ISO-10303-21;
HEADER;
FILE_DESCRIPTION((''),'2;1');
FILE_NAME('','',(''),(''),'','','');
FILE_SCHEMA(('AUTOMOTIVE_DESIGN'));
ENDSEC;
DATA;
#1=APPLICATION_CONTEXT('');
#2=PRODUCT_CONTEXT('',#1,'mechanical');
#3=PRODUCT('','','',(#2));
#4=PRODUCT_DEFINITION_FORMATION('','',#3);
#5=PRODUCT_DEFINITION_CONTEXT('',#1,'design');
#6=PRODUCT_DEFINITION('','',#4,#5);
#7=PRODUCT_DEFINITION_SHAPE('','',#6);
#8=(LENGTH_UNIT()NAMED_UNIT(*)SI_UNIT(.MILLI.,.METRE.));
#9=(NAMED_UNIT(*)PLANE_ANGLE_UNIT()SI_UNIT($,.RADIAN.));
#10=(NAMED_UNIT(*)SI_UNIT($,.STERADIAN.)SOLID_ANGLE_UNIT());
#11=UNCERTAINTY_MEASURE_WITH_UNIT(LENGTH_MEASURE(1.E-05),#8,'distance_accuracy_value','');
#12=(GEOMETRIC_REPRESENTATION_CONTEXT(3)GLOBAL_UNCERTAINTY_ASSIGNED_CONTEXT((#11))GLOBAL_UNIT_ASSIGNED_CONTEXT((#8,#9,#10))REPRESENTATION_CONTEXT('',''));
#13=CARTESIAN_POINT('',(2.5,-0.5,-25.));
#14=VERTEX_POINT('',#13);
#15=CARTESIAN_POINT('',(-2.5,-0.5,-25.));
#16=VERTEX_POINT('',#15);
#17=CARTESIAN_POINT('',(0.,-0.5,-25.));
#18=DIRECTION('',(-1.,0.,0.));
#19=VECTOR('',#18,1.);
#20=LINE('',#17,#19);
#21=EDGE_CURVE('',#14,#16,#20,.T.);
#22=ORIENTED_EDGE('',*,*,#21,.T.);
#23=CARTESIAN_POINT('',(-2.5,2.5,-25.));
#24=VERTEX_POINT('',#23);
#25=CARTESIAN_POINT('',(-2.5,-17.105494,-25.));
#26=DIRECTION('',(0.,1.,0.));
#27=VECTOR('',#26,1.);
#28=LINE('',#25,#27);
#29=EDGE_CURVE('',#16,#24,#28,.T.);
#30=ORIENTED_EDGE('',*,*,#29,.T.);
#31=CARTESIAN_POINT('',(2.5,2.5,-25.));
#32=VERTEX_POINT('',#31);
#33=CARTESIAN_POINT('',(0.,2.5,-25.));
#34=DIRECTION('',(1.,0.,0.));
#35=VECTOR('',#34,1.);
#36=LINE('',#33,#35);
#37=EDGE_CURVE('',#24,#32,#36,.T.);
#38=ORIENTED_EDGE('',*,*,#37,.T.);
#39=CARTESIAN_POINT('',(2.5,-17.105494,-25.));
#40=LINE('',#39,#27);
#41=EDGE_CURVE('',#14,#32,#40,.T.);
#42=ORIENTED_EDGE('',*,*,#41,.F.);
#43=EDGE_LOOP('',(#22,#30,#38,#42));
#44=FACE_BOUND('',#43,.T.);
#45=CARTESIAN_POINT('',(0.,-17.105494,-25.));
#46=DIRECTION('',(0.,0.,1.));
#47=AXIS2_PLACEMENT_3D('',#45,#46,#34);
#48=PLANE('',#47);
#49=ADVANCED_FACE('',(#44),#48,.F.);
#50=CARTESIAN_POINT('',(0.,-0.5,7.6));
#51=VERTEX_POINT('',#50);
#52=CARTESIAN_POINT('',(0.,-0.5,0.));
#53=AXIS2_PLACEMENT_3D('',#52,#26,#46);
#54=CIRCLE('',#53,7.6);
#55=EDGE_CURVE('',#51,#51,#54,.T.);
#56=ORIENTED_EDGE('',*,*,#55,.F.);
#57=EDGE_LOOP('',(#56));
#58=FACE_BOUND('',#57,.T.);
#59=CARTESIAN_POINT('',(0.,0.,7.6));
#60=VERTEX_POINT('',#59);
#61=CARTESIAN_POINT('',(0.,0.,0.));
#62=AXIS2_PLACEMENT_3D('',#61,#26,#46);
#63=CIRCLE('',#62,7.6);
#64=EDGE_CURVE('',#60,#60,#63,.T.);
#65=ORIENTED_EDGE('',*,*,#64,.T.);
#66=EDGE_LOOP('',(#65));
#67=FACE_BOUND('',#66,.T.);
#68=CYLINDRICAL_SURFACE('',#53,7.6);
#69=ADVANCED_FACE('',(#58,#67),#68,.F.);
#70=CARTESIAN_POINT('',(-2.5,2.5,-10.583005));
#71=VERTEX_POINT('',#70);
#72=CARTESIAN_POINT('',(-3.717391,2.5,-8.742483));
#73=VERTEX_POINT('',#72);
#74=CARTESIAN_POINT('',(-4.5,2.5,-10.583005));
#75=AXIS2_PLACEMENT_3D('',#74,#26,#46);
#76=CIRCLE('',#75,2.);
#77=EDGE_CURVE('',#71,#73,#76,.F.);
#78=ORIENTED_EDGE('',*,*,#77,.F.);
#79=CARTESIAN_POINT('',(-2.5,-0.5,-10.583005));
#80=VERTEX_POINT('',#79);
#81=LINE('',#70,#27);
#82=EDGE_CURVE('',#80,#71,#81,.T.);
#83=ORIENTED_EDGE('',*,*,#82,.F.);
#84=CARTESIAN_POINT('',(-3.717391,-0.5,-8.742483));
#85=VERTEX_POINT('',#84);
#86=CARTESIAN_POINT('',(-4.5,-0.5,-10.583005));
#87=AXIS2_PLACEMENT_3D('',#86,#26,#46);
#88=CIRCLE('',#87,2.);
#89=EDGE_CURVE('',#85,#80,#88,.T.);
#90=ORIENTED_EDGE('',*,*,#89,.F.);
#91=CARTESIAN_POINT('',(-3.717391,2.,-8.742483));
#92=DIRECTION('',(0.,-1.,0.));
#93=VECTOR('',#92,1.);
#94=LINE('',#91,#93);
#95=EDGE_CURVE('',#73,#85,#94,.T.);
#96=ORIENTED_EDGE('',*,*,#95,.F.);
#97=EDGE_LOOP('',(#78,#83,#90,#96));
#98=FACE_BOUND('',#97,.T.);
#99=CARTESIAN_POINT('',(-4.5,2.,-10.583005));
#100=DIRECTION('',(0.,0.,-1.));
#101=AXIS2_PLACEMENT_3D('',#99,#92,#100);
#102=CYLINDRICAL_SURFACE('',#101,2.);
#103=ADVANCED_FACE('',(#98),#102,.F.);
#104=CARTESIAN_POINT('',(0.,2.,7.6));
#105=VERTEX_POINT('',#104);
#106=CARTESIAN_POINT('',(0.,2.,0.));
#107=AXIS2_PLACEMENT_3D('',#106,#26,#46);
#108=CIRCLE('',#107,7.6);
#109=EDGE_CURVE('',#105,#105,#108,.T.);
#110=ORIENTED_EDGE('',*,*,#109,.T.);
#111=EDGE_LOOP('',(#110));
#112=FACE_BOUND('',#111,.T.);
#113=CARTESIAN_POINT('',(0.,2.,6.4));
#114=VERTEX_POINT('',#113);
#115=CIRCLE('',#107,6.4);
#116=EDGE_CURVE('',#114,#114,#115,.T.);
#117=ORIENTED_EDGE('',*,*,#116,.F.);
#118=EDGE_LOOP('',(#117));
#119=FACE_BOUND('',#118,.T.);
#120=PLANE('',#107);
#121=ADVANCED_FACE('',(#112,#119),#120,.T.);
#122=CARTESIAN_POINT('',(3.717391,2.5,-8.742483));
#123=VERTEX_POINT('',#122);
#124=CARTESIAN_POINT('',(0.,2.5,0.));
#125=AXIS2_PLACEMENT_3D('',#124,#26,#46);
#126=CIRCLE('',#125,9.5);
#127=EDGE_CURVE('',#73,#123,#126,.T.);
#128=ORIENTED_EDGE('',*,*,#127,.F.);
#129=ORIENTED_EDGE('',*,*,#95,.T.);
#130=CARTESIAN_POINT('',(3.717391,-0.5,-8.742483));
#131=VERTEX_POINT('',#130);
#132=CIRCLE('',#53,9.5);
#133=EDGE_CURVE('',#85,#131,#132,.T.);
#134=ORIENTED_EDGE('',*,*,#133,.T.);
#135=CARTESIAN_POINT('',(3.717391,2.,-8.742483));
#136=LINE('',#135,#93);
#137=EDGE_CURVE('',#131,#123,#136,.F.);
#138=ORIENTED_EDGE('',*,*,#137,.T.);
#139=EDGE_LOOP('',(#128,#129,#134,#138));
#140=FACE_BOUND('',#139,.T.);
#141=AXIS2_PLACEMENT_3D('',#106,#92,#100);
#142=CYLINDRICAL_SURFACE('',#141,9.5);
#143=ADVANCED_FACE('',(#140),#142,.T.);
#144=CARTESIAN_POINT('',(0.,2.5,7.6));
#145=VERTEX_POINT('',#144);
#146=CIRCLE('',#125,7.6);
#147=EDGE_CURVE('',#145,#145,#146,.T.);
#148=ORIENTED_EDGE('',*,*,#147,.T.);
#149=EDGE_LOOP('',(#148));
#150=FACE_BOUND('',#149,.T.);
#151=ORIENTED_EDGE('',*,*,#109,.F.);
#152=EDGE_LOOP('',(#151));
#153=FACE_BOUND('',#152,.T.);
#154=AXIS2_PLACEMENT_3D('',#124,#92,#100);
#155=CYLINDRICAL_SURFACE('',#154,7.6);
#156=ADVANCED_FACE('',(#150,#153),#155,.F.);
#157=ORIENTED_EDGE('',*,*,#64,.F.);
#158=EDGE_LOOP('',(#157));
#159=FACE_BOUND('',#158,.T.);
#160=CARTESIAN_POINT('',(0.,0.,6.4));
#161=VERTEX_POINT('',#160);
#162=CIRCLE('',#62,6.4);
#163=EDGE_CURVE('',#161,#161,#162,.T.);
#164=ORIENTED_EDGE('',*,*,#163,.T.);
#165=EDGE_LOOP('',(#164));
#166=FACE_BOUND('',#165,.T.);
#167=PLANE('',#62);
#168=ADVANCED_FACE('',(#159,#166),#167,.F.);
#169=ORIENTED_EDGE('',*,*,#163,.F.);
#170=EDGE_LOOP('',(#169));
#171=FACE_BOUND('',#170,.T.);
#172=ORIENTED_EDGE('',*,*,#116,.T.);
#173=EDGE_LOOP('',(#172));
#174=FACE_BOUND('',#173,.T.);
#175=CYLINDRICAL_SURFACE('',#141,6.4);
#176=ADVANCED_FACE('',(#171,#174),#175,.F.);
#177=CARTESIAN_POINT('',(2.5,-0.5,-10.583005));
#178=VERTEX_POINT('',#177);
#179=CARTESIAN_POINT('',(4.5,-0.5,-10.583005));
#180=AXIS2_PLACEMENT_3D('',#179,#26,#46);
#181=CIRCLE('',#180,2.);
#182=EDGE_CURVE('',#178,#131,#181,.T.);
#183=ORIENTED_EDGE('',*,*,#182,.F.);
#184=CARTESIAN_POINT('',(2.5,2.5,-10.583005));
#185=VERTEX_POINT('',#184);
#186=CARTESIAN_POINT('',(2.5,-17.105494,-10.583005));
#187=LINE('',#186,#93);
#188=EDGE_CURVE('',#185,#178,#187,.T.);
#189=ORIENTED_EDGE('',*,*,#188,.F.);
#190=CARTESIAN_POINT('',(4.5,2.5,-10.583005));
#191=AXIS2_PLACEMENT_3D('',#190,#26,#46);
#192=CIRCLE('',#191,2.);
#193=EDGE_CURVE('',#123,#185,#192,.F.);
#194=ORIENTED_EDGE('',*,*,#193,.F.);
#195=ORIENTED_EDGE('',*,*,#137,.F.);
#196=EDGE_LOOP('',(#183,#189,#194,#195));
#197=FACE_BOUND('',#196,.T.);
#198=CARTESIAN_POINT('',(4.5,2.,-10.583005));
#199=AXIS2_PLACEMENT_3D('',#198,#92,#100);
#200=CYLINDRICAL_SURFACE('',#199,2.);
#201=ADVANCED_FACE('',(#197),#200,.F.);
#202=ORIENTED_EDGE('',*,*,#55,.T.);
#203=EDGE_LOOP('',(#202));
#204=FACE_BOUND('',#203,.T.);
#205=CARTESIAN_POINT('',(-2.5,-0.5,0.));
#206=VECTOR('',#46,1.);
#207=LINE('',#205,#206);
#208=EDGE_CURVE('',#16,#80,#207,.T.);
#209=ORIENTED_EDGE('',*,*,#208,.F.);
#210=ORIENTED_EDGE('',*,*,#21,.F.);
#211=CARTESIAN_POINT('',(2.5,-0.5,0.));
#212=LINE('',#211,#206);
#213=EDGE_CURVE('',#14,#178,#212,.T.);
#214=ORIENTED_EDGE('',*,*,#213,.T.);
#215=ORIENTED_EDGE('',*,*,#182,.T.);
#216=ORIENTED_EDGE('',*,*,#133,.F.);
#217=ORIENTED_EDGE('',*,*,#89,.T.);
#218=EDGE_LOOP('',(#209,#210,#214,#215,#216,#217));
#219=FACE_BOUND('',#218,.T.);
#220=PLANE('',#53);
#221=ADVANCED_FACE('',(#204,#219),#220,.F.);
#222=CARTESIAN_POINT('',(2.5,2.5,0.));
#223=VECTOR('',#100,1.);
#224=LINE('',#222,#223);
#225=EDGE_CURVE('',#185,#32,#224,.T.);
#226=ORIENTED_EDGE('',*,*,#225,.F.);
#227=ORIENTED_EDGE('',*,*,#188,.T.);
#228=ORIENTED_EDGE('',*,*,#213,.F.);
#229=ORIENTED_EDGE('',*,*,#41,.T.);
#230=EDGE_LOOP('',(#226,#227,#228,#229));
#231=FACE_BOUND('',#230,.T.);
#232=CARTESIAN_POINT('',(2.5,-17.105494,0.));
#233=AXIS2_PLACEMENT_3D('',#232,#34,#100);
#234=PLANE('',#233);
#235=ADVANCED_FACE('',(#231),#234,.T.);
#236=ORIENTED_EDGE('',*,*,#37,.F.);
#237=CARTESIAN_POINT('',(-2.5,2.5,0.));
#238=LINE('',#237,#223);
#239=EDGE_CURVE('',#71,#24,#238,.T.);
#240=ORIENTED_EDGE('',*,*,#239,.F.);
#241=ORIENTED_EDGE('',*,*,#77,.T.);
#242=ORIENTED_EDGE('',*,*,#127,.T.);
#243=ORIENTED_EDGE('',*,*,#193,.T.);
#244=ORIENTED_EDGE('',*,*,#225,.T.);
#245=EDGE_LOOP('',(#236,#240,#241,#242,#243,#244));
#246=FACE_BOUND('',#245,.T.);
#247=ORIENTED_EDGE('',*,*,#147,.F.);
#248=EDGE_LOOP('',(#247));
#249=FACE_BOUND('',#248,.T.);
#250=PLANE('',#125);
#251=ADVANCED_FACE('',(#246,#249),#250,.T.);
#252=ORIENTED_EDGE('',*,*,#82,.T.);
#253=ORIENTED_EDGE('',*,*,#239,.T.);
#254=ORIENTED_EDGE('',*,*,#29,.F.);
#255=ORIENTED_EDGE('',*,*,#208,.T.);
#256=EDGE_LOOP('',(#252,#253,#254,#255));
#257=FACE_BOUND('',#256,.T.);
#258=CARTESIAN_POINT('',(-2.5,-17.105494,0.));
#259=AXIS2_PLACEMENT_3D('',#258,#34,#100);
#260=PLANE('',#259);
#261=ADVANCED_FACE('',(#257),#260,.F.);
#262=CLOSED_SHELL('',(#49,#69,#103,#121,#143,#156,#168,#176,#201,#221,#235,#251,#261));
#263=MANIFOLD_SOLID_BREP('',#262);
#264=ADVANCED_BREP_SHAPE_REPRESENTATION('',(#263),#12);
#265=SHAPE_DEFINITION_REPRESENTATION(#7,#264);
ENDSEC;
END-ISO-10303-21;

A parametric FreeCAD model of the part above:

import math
import FreeCAD as App
import Part
import Sketcher
Q = App.Units.Quantity


def edges_at(feature, points):
    """Names of the edges that pass closest to the given points."""
    edges = feature.Shape.Edges
    near = lambda p: min(range(len(edges)), key=lambda i: edges[i].distToShape(Part.Vertex(*p))[0])
    return sorted({f"Edge{near(p) + 1}" for p in points})

doc = App.newDocument("Part")
body = doc.addObject("PartDesign::Body", "Body")

sketch1 = doc.addObject("Sketcher::SketchObject", "Sketch")
body.addObject(sketch1)
sketch1.AttachmentSupport = (doc.XZ_Plane, [""])
sketch1.MapMode = "FlatFace"
sketch1.addGeometry([
    Part.Circle(App.Vector(0, 0, 0), App.Vector(0, 0, 1), 10),
    Part.Circle(App.Vector(0, 0, 0), App.Vector(0, 0, 1), 6),
], False)
sketch1.addConstraint([
    Sketcher.Constraint("Coincident", 0, 3, -1, 1),
    Sketcher.Constraint("Coincident", 1, 3, -1, 1),
    Sketcher.Constraint("Diameter", 0, Q("19 mm")),
    Sketcher.Constraint("Diameter", 1, Q("12.8 mm")),
])
pad1 = doc.addObject("PartDesign::Pad", "Pad")
body.addObject(pad1)
pad1.Profile = sketch1
pad1.Length = 2
pad1.Reversed = True

sketch2 = doc.addObject("Sketcher::SketchObject", "Sketch001")
body.addObject(sketch2)
sketch2.AttachmentSupport = (doc.XZ_Plane, [""])
sketch2.MapMode = "FlatFace"
sketch2.AttachmentOffset = App.Placement(App.Vector(0, 0, -2), App.Rotation())
sketch2.addGeometry([
    Part.Circle(App.Vector(0, 0, 0), App.Vector(0, 0, 1), 10),
    Part.Circle(App.Vector(0, 0, 0), App.Vector(0, 0, 1), 8),
], False)
sketch2.addConstraint([
    Sketcher.Constraint("Coincident", 0, 3, -1, 1),
    Sketcher.Constraint("Coincident", 1, 3, -1, 1),
    Sketcher.Constraint("Diameter", 0, Q("19 mm")),
    Sketcher.Constraint("Diameter", 1, Q("15.2 mm")),
])
pad2 = doc.addObject("PartDesign::Pad", "Pad001")
body.addObject(pad2)
pad2.Profile = sketch2
pad2.Length = 0.5
pad2.Reversed = True

sketch3 = doc.addObject("Sketcher::SketchObject", "Sketch002")
body.addObject(sketch3)
sketch3.AttachmentSupport = (doc.XZ_Plane, [""])
sketch3.MapMode = "FlatFace"
sketch3.AttachmentOffset = App.Placement(App.Vector(0, 0, 0.5), App.Rotation())
sketch3.addGeometry([
    Part.Circle(App.Vector(0, 0, 0), App.Vector(0, 0, 1), 10),
    Part.Circle(App.Vector(0, 0, 0), App.Vector(0, 0, 1), 8),
], False)
sketch3.addConstraint([
    Sketcher.Constraint("Coincident", 0, 3, -1, 1),
    Sketcher.Constraint("Coincident", 1, 3, -1, 1),
    Sketcher.Constraint("Diameter", 0, Q("19 mm")),
    Sketcher.Constraint("Diameter", 1, Q("15.2 mm")),
])
pad3 = doc.addObject("PartDesign::Pad", "Pad002")
body.addObject(pad3)
pad3.Profile = sketch3
pad3.Length = 0.5
pad3.Reversed = True

sketch4 = doc.addObject("Sketcher::SketchObject", "Sketch003")
body.addObject(sketch4)
sketch4.AttachmentSupport = (doc.XZ_Plane, [""])
sketch4.MapMode = "FlatFace"
sketch4.AttachmentOffset = App.Placement(App.Vector(0, 0, 0.5), App.Rotation())
sketch4.addGeometry([
    Part.LineSegment(App.Vector(-2, -25, 0), App.Vector(-2, -9, 0)),
    Part.ArcOfCircle(Part.Circle(App.Vector(0, 0, 0), App.Vector(0, 0, 1), 10), math.radians(-105), math.radians(-75)),
    Part.LineSegment(App.Vector(2, -9, 0), App.Vector(2, -25, 0)),
    Part.LineSegment(App.Vector(2, -25, 0), App.Vector(-2, -25, 0)),
], False)
sketch4.addConstraint([
    Sketcher.Constraint("Coincident", 0, 2, 1, 1),
    Sketcher.Constraint("Coincident", 1, 2, 2, 1),
    Sketcher.Constraint("Coincident", 2, 2, 3, 1),
    Sketcher.Constraint("Coincident", 3, 2, 0, 1),
    Sketcher.Constraint("Vertical", 0),
    Sketcher.Constraint("Vertical", 2),
    Sketcher.Constraint("Horizontal", 3),
    Sketcher.Constraint("Coincident", 1, 3, -1, 1),
    Sketcher.Constraint("Horizontal", 0, 2, 1, 2),
    Sketcher.Constraint("Radius", 1, Q("9.5 mm")),
    Sketcher.Constraint("DistanceX", 3, 2, 3, 1, Q("5 mm")),
    Sketcher.Constraint("DistanceY", 2, 2, -1, 1, Q("25 mm")),
])
pad4 = doc.addObject("PartDesign::Pad", "Pad003")
body.addObject(pad4)
pad4.Profile = sketch4
pad4.Length = 3
pad4.Reversed = True
doc.recompute()

fillet = doc.addObject("PartDesign::Fillet", "Fillet")
body.addObject(fillet)
fillet.Base = (pad4, edges_at(pad4, [(2.5, 1, -9.165), (-2.5, 1, -9.165)]))
fillet.Radius = 2

doc.recompute()
